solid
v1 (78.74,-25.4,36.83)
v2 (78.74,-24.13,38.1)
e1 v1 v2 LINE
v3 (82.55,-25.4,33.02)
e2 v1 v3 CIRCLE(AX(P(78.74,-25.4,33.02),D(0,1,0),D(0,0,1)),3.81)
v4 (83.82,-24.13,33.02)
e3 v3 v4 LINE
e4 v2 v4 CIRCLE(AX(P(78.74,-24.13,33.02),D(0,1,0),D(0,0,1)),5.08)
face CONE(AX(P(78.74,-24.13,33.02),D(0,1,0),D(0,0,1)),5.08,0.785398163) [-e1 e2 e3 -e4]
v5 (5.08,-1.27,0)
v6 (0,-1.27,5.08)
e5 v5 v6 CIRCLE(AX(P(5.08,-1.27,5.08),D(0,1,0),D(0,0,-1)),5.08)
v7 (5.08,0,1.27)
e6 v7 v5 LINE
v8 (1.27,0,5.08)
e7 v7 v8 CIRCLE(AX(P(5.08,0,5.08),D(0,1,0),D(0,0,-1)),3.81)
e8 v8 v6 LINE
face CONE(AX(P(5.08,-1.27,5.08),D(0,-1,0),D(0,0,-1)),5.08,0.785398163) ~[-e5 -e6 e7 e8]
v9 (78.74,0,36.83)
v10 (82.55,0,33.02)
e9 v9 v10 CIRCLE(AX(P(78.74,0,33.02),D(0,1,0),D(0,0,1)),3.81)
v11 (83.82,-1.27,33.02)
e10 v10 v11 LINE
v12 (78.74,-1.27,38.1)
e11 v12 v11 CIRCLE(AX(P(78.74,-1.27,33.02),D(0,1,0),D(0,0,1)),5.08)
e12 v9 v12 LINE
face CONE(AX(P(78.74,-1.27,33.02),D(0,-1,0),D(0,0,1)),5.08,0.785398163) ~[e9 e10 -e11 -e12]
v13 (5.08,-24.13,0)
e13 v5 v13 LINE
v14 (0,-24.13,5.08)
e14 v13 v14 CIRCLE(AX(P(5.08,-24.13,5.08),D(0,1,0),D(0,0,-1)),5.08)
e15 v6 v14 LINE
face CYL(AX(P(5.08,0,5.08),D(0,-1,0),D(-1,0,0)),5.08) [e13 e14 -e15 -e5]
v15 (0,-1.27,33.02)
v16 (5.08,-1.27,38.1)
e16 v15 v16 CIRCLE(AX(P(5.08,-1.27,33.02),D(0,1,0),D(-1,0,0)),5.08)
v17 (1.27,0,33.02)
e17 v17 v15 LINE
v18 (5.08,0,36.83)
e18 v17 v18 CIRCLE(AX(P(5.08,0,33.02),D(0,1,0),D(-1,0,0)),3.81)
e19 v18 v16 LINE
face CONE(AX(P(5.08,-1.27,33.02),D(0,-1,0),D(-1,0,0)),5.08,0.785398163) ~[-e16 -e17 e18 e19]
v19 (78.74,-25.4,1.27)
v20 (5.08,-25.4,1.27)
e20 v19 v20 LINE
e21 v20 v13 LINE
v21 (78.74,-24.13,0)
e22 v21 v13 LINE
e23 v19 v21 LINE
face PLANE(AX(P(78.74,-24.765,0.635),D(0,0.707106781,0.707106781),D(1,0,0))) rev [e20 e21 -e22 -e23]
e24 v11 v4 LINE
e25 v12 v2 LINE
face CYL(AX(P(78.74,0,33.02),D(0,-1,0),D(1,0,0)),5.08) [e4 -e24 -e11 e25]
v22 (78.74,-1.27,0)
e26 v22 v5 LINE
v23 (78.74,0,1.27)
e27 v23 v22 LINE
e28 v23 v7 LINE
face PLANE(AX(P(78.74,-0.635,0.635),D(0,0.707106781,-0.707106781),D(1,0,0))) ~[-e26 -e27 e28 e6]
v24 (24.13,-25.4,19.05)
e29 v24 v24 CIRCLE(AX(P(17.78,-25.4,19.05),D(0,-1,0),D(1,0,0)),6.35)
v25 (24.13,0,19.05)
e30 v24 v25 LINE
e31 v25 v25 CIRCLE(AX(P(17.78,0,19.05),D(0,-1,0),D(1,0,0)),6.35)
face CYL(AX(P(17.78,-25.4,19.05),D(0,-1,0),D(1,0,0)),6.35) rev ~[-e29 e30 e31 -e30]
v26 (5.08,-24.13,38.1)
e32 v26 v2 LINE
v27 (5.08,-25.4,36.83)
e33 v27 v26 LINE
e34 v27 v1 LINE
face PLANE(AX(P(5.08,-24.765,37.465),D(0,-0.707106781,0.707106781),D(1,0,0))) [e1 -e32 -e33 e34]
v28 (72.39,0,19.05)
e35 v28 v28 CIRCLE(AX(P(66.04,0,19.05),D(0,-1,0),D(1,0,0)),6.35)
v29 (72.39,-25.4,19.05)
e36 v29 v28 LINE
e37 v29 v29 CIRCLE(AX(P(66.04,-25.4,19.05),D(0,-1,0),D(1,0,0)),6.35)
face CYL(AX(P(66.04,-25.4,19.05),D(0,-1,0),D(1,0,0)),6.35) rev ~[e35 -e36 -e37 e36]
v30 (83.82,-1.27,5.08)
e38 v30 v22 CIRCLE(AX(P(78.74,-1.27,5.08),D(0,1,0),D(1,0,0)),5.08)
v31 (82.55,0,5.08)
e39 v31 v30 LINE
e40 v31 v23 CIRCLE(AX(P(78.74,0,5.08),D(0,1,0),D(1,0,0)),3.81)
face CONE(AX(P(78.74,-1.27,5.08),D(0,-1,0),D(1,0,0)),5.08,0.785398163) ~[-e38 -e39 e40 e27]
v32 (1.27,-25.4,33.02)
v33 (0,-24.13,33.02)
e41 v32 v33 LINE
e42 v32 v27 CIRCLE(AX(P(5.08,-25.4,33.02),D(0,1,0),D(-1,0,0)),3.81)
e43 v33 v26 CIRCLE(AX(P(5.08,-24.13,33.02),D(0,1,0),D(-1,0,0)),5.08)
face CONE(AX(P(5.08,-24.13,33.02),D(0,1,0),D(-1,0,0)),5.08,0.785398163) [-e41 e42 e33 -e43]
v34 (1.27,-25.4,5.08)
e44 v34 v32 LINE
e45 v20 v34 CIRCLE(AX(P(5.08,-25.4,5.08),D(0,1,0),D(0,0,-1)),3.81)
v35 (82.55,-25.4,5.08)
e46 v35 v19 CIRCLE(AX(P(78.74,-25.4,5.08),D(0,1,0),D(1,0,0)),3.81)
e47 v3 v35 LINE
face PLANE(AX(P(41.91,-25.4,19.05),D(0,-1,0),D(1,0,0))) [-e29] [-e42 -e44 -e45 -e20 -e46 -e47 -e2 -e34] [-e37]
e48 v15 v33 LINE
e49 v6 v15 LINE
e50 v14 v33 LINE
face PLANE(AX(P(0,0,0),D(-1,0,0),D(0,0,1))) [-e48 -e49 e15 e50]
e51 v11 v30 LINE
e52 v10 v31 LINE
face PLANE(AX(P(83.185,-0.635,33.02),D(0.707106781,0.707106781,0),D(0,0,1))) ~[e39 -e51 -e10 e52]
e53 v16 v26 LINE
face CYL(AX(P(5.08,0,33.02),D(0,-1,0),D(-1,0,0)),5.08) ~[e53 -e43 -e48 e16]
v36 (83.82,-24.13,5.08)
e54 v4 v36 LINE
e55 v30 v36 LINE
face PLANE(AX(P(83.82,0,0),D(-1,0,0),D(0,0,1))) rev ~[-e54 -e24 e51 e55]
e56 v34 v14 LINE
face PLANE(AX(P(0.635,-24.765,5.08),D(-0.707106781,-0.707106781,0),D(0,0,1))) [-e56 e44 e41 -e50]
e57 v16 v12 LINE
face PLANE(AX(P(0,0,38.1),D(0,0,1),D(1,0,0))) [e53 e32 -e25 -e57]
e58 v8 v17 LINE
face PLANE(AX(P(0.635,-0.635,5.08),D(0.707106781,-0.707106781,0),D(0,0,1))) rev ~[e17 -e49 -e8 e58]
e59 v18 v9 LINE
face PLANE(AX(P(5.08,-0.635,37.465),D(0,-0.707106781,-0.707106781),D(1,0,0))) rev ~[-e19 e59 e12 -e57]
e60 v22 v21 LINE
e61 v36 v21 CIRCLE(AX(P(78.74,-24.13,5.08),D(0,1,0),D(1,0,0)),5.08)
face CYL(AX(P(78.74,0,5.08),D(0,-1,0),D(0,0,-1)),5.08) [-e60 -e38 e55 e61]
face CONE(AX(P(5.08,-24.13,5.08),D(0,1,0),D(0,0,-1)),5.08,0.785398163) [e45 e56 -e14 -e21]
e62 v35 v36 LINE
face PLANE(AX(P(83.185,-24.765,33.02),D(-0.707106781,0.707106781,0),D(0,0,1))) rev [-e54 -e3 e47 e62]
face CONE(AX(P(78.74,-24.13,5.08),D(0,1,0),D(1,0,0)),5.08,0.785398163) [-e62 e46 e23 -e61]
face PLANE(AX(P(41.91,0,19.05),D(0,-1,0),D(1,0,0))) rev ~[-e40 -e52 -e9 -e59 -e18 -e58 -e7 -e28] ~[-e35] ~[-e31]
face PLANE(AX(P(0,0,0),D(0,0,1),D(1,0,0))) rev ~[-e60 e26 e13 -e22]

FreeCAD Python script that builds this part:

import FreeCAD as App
import Part
import Sketcher

V = App.Vector
Q = App.Units.Quantity


def edges_at(feature, points):
    """Names of the edges that pass closest to the given points."""
    edges = feature.Shape.Edges
    near = lambda p: min(range(len(edges)), key=lambda i: edges[i].distToShape(Part.Vertex(*p))[0])
    return sorted({f"Edge{near(p) + 1}" for p in points})

doc = App.newDocument("Part")
body = doc.addObject("PartDesign::Body", "Body")

# Sketch on XZ plane
sketch1 = body.newObject("Sketcher::SketchObject", "Sketch")
sketch1.AttachmentSupport = (doc.getObject("XZ_Plane"), [""])
sketch1.MapMode = "FlatFace"
sketch1.addGeometry([
    Part.LineSegment(V(0, 38, 0), V(0, 0, 0)),
    Part.LineSegment(V(0, 0, 0), V(84, 0, 0)),
    Part.LineSegment(V(84, 0, 0), V(84, 38, 0)),
    Part.LineSegment(V(84, 38, 0), V(0, 38, 0)),
], False)
sketch1.addConstraint([
    Sketcher.Constraint("Coincident", 0, 2, 1, 1),
    Sketcher.Constraint("Coincident", 1, 2, 2, 1),
    Sketcher.Constraint("Coincident", 2, 2, 3, 1),
    Sketcher.Constraint("Coincident", 3, 2, 0, 1),
    Sketcher.Constraint("Vertical", 0),
    Sketcher.Constraint("Horizontal", 1),
    Sketcher.Constraint("Vertical", 2),
    Sketcher.Constraint("Horizontal", 3),
    Sketcher.Constraint("Coincident", 0, 2, -1, 1),
    Sketcher.Constraint("DistanceX", 1, 1, 1, 2, Q("3.3 in")),
    Sketcher.Constraint("DistanceY", 0, 2, 0, 1, Q("1.5 in")),
])
pad1 = body.newObject("PartDesign::Pad", "Pad")
pad1.Profile = sketch1
pad1.Length = Q("1 in")
doc.recompute()

fillet = body.newObject("PartDesign::Fillet", "Fillet")
fillet.Base = (pad1, edges_at(pad1, [
    (83.82, -12.7, 38.1),
    (0, -12.7, 38.1),
    (83.82, -12.7, 0),
    (0, -12.7, 0),
]))
fillet.Radius = Q("0.2 in")

# Sketch on XZ plane
sketch2 = body.newObject("Sketcher::SketchObject", "Sketch001")
sketch2.AttachmentSupport = (doc.getObject("XZ_Plane"), [""])
sketch2.MapMode = "FlatFace"
sketch2.AttachmentOffset = App.Placement(V(0, 0, 1 * 25.4), App.Rotation())
sketch2.addGeometry([
    Part.Circle(V(18, 19, 0), V(0, 0, 1), 6),
    Part.Circle(V(66, 19, 0), V(0, 0, 1), 6),
], False)
sketch2.addConstraint([
    Sketcher.Constraint("Equal", 0, 1),
    Sketcher.Constraint("Horizontal", 0, 3, 1, 3),
    Sketcher.Constraint("Diameter", 0, Q("0.5 in")),
    Sketcher.Constraint("DistanceX", -1, 1, 0, 3, Q("0.7 in")),
    Sketcher.Constraint("DistanceX", -1, 1, 1, 3, Q("2.6 in")),
    Sketcher.Constraint("DistanceY", -1, 1, 0, 3, Q("0.75 in")),
])
pocket1 = body.newObject("PartDesign::Pocket", "Pocket")
pocket1.Profile = sketch2
pocket1.Type = "ThroughAll"
doc.recompute()

chamfer = body.newObject("PartDesign::Chamfer", "Chamfer")
chamfer.Base = (pocket1, edges_at(pocket1, [(41.91, -25.4, 38.1), (41.91, 0, 38.1)]))
chamfer.Size = Q("0.05 in")

doc.recompute()
